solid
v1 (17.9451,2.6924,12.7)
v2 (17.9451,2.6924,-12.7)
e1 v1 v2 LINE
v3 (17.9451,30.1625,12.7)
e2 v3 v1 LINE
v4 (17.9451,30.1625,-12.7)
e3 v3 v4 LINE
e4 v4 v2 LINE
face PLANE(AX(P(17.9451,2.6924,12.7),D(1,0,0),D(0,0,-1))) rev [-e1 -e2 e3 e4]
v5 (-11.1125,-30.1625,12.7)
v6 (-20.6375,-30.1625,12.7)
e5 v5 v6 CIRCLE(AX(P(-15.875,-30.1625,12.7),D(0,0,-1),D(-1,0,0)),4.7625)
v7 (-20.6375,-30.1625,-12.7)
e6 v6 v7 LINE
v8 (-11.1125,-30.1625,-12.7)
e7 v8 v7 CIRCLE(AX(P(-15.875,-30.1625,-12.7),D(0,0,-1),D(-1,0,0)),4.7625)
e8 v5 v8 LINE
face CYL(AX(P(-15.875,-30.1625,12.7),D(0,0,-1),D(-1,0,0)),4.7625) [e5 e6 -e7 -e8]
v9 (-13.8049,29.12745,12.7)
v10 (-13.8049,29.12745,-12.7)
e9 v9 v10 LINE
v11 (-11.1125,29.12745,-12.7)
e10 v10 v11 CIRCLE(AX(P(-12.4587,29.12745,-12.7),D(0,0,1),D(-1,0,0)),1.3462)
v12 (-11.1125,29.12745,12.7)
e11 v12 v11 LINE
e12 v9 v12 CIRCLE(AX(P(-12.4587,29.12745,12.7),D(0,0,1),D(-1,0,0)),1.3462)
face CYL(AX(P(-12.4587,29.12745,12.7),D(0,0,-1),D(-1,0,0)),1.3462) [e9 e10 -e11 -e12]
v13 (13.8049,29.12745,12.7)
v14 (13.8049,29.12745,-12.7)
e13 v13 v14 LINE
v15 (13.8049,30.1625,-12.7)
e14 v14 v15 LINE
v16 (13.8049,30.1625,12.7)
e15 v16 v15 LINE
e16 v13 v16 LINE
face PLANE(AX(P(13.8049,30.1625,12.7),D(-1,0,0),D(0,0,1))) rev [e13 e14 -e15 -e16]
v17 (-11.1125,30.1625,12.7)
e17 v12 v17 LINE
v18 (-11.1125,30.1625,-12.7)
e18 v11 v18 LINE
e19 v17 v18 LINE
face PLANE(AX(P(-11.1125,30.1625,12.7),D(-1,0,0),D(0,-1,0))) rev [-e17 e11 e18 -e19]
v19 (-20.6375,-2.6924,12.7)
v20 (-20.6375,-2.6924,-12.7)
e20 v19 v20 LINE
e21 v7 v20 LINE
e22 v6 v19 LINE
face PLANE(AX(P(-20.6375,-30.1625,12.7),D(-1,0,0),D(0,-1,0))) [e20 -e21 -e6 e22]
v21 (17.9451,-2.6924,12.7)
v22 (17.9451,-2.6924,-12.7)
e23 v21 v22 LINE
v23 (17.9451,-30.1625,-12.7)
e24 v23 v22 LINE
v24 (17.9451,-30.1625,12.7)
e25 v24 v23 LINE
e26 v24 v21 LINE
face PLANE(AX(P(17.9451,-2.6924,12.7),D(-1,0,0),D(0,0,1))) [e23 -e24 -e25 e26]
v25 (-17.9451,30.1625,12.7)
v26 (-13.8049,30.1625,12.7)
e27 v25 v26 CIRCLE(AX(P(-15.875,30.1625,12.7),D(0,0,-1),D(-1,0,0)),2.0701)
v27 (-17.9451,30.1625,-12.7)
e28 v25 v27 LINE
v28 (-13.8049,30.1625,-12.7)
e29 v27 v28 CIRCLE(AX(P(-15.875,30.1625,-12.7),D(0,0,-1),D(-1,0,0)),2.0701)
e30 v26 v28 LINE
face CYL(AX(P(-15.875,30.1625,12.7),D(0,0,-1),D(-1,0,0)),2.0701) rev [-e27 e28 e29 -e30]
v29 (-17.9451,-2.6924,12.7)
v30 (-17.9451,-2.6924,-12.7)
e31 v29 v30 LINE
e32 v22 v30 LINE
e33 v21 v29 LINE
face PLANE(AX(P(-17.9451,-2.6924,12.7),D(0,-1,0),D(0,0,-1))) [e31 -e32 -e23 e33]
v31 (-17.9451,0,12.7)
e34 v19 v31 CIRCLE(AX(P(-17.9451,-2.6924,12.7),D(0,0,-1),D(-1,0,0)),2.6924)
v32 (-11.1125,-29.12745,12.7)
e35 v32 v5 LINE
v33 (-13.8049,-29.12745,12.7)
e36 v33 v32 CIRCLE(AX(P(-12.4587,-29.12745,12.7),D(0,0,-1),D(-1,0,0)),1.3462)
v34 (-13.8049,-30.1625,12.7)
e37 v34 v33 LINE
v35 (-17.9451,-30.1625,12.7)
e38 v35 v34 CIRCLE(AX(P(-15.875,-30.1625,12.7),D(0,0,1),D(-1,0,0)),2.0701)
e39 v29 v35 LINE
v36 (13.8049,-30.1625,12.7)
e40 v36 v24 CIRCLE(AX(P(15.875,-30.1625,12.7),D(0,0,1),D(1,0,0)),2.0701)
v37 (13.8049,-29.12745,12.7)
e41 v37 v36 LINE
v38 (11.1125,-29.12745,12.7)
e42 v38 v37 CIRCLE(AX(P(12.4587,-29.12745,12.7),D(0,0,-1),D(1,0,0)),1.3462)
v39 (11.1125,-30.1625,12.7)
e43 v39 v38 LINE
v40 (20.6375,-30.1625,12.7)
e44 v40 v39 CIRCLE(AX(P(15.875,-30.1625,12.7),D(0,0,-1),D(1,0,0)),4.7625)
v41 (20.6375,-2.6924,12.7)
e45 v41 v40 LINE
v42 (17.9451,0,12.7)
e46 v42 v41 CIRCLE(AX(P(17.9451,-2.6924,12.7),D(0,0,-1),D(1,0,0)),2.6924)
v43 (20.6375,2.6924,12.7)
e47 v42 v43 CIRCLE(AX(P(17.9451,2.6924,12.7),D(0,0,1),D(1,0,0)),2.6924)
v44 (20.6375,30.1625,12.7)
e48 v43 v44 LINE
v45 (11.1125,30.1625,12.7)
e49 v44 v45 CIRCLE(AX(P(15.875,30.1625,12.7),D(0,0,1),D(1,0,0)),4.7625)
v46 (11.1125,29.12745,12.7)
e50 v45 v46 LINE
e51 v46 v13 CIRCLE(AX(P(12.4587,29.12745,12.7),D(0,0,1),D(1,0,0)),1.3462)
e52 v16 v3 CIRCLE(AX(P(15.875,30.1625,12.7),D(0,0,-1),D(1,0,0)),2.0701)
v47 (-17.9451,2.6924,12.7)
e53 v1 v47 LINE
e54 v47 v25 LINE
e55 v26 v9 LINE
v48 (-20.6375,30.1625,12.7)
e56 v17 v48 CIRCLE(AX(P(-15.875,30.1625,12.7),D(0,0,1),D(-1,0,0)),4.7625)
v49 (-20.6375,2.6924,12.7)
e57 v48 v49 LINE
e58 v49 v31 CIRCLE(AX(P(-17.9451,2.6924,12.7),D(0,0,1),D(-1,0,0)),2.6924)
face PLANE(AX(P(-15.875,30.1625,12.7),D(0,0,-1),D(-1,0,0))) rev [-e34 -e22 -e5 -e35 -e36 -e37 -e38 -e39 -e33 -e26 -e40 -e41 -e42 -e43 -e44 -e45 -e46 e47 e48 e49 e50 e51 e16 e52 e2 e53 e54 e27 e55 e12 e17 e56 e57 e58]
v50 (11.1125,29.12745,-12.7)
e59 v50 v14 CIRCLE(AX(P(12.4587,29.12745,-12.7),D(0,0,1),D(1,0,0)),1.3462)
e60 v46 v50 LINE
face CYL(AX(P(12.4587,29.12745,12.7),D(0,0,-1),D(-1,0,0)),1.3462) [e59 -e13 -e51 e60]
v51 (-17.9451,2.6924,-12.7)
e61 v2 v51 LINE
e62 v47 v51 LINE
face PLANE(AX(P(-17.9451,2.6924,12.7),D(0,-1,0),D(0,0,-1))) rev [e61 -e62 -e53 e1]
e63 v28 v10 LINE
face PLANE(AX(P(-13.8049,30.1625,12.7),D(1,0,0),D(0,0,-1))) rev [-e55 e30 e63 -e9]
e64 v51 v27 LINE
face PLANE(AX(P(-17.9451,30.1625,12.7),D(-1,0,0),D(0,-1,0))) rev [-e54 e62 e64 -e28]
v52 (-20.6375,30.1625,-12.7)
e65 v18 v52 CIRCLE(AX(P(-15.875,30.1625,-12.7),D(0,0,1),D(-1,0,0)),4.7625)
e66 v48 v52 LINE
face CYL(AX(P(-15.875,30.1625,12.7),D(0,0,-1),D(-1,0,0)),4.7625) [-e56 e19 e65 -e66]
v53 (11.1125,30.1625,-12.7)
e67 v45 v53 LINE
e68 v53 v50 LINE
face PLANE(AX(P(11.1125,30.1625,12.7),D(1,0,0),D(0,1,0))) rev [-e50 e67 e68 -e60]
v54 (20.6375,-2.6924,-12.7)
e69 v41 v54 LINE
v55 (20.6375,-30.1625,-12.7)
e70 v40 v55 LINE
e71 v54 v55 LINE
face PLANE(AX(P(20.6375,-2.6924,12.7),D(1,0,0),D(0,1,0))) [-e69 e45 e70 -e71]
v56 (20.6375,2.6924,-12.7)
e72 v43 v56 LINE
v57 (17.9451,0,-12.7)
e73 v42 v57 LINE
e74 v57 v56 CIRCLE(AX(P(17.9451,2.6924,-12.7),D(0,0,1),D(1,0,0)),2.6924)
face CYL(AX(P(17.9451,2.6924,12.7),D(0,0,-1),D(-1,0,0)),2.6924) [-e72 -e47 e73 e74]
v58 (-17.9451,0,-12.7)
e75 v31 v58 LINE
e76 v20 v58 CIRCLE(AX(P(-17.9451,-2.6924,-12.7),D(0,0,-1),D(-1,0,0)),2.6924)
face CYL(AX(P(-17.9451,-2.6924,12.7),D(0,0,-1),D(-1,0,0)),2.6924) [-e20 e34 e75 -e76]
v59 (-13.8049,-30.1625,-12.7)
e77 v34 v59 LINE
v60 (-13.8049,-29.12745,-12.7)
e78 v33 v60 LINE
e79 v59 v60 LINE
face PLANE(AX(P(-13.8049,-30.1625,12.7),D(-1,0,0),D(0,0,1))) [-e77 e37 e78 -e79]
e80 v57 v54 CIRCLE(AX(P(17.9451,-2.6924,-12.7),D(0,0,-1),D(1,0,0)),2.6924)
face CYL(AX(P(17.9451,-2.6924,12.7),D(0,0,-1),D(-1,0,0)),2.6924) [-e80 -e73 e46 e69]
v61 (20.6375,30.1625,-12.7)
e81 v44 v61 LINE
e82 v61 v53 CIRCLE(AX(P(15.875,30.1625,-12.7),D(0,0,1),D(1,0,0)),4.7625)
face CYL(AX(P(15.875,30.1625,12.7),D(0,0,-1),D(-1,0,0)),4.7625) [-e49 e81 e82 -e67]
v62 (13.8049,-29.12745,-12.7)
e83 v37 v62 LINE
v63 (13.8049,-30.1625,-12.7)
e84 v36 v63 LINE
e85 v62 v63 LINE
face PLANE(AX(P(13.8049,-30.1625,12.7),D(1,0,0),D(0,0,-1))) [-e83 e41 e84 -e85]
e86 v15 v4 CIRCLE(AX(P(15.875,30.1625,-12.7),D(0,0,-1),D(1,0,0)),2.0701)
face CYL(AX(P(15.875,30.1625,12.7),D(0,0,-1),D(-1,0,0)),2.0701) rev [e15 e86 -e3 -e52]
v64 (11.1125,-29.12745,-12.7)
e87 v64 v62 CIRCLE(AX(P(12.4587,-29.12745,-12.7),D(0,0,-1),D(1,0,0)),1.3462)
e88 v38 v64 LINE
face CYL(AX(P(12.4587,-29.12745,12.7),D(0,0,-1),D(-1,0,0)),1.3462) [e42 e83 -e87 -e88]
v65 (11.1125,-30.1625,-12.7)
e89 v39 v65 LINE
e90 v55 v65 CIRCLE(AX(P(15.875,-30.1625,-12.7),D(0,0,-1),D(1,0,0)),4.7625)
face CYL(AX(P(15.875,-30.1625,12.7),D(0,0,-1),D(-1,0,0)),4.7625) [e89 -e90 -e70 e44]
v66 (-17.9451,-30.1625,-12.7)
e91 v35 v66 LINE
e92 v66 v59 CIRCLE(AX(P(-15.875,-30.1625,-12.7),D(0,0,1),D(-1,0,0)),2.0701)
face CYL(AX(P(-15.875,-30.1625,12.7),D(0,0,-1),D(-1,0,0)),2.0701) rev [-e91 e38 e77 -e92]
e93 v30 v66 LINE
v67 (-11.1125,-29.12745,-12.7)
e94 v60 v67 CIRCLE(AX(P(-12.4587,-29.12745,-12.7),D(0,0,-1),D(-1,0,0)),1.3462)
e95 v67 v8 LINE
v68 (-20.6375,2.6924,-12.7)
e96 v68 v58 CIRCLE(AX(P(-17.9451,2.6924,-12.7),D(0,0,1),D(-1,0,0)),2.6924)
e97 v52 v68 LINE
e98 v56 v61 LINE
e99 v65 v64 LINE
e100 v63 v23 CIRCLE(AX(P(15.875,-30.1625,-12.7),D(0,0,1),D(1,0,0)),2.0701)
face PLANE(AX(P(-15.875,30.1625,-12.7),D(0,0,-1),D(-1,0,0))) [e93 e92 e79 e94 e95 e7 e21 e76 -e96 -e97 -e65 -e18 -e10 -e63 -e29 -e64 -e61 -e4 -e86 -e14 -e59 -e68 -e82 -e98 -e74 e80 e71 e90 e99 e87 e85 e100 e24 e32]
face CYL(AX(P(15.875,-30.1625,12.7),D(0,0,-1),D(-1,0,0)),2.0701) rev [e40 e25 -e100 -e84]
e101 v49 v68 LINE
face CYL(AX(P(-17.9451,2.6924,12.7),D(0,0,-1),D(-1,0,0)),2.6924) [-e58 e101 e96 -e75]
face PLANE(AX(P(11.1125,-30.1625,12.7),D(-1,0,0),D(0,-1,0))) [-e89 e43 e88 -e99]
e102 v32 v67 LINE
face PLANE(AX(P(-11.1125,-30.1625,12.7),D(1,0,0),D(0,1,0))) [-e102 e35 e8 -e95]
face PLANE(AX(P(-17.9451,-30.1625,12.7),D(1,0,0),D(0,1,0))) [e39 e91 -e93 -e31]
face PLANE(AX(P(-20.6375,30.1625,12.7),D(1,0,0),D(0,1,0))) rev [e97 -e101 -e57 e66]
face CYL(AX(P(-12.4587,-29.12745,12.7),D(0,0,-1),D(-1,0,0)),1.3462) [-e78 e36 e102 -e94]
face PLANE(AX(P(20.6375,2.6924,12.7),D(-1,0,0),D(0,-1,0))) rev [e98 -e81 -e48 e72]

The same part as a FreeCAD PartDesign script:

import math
import FreeCAD as App
import Part
import Sketcher
from FreeCAD import Vector
Q = App.Units.Quantity

doc = App.newDocument("Part")
body = doc.addObject("PartDesign::Body", "Body")

# Sketch on XY plane
sketch1 = doc.addObject("Sketcher::SketchObject", "Sketch")
body.addObject(sketch1)
sketch1.AttachmentSupport = (doc.XY_Plane, [""])
sketch1.MapMode = "FlatFace"
sketch1.addGeometry(Part.LineSegment(Vector(-20.6, 30.2, 0), Vector(-20.6, 2.7, 0)), False)
sketch1.addGeometry(Part.ArcOfCircle(Part.Circle(Vector(-17.9, 2.7, 0), Vector(0, 0, 1), 2.7), math.radians(180), math.radians(270)), False)
sketch1.addGeometry(Part.LineSegment(Vector(-17.9, 0, 0), Vector(17.9, 0, 0)), False)
sketch1.addGeometry(Part.ArcOfCircle(Part.Circle(Vector(17.9, 2.7, 0), Vector(0, 0, 1), 2.7), math.radians(-90), math.radians(0)), False)
sketch1.addGeometry(Part.LineSegment(Vector(20.6, 2.7, 0), Vector(20.6, 30.2, 0)), False)
sketch1.addGeometry(Part.ArcOfCircle(Part.Circle(Vector(15.9, 30.2, 0), Vector(0, 0, 1), 4.8), math.radians(0), math.radians(180)), False)
sketch1.addGeometry(Part.LineSegment(Vector(11.1, 30.2, 0), Vector(11.1, 29.1, 0)), False)
sketch1.addGeometry(Part.ArcOfCircle(Part.Circle(Vector(12.5, 29.1, 0), Vector(0, 0, 1), 1.3), math.radians(180), math.radians(360)), False)
sketch1.addGeometry(Part.LineSegment(Vector(13.8, 29.1, 0), Vector(13.8, 30.2, 0)), False)
sketch1.addGeometry(Part.ArcOfCircle(Part.Circle(Vector(15.9, 30.2, 0), Vector(0, 0, 1), 2.1), math.radians(0), math.radians(180)), False)
sketch1.addGeometry(Part.LineSegment(Vector(17.9, 30.2, 0), Vector(17.9, 2.7, 0)), False)
sketch1.addGeometry(Part.LineSegment(Vector(17.9, 2.7, 0), Vector(-17.9, 2.7, 0)), False)
sketch1.addGeometry(Part.LineSegment(Vector(-17.9, 2.7, 0), Vector(-17.9, 30.2, 0)), False)
sketch1.addGeometry(Part.ArcOfCircle(Part.Circle(Vector(-15.9, 30.2, 0), Vector(0, 0, 1), 2.1), math.radians(0), math.radians(180)), False)
sketch1.addGeometry(Part.LineSegment(Vector(-13.8, 30.2, 0), Vector(-13.8, 29.1, 0)), False)
sketch1.addGeometry(Part.ArcOfCircle(Part.Circle(Vector(-12.5, 29.1, 0), Vector(0, 0, 1), 1.3), math.radians(180), math.radians(360)), False)
sketch1.addGeometry(Part.LineSegment(Vector(-11.1, 29.1, 0), Vector(-11.1, 30.2, 0)), False)
sketch1.addGeometry(Part.ArcOfCircle(Part.Circle(Vector(-15.9, 30.2, 0), Vector(0, 0, 1), 4.8), math.radians(0), math.radians(180)), False)
sketch1.addConstraint(Sketcher.Constraint("Tangent", 0, 2, 1, 1))
sketch1.addConstraint(Sketcher.Constraint("Tangent", 1, 2, 2, 1))
sketch1.addConstraint(Sketcher.Constraint("Tangent", 2, 2, 3, 1))
sketch1.addConstraint(Sketcher.Constraint("Tangent", 3, 2, 4, 1))
sketch1.addConstraint(Sketcher.Constraint("Tangent", 4, 2, 5, 1))
sketch1.addConstraint(Sketcher.Constraint("Tangent", 5, 2, 6, 1))
sketch1.addConstraint(Sketcher.Constraint("Tangent", 6, 2, 7, 1))
sketch1.addConstraint(Sketcher.Constraint("Tangent", 7, 2, 8, 1))
sketch1.addConstraint(Sketcher.Constraint("Tangent", 8, 2, 9, 2))
sketch1.addConstraint(Sketcher.Constraint("Tangent", 9, 1, 10, 1))
sketch1.addConstraint(Sketcher.Constraint("Coincident", 10, 2, 11, 1))
sketch1.addConstraint(Sketcher.Constraint("Coincident", 11, 2, 12, 1))
sketch1.addConstraint(Sketcher.Constraint("Tangent", 12, 2, 13, 2))
sketch1.addConstraint(Sketcher.Constraint("Tangent", 13, 1, 14, 1))
sketch1.addConstraint(Sketcher.Constraint("Tangent", 14, 2, 15, 1))
sketch1.addConstraint(Sketcher.Constraint("Tangent", 15, 2, 16, 1))
sketch1.addConstraint(Sketcher.Constraint("Tangent", 16, 2, 17, 1))
sketch1.addConstraint(Sketcher.Constraint("Tangent", 17, 2, 0, 1))
sketch1.addConstraint(Sketcher.Constraint("Vertical", 0))
sketch1.addConstraint(Sketcher.Constraint("Horizontal", 2))
sketch1.addConstraint(Sketcher.Constraint("Vertical", 4))
sketch1.addConstraint(Sketcher.Constraint("Vertical", 6))
sketch1.addConstraint(Sketcher.Constraint("Vertical", 8))
sketch1.addConstraint(Sketcher.Constraint("Vertical", 10))
sketch1.addConstraint(Sketcher.Constraint("Horizontal", 11))
sketch1.addConstraint(Sketcher.Constraint("Vertical", 12))
sketch1.addConstraint(Sketcher.Constraint("Vertical", 14))
sketch1.addConstraint(Sketcher.Constraint("Vertical", 16))
sketch1.addConstraint(Sketcher.Constraint("Coincident", 9, 3, 5, 3))
sketch1.addConstraint(Sketcher.Constraint("Coincident", 17, 3, 13, 3))
sketch1.addConstraint(Sketcher.Constraint("Coincident", 10, 2, 3, 3))
sketch1.addConstraint(Sketcher.Constraint("Coincident", 11, 2, 1, 3))
sketch1.addConstraint(Sketcher.Constraint("Equal", 9, 13))
sketch1.addConstraint(Sketcher.Constraint("Symmetric", 1, 2, 2, 2, -1, 1))
sketch1.addConstraint(Sketcher.Constraint("Horizontal", 9, 3, 13, 3))
sketch1.addConstraint(Sketcher.Constraint("Horizontal", 7, 3, 15, 3))
sketch1.addConstraint(Sketcher.Constraint("Radius", 1, Q("0.106 in")))
sketch1.addConstraint(Sketcher.Constraint("Radius", 5, Q("0.1875 in")))
sketch1.addConstraint(Sketcher.Constraint("DistanceX", 2, 1, 2, 2, Q("1.413 in")))
sketch1.addConstraint(Sketcher.Constraint("DistanceY", 0, 2, 0, 1, Q("1.0815 in")))
sketch1.addConstraint(Sketcher.Constraint("DistanceY", 6, 2, 6, 1, 1.03505))
pad1 = doc.addObject("PartDesign::Pad", "Pad")
body.addObject(pad1)
pad1.Profile = sketch1
pad1.Length = Q("1 in")
pad1.Midplane = True
doc.recompute()

mirrored = doc.addObject("PartDesign::Mirrored", "Mirrored")
body.addObject(mirrored)
mirrored.Originals = [pad1]
mirrored.MirrorPlane = (doc.XZ_Plane, [""])
body.Tip = mirrored

doc.recompute()
